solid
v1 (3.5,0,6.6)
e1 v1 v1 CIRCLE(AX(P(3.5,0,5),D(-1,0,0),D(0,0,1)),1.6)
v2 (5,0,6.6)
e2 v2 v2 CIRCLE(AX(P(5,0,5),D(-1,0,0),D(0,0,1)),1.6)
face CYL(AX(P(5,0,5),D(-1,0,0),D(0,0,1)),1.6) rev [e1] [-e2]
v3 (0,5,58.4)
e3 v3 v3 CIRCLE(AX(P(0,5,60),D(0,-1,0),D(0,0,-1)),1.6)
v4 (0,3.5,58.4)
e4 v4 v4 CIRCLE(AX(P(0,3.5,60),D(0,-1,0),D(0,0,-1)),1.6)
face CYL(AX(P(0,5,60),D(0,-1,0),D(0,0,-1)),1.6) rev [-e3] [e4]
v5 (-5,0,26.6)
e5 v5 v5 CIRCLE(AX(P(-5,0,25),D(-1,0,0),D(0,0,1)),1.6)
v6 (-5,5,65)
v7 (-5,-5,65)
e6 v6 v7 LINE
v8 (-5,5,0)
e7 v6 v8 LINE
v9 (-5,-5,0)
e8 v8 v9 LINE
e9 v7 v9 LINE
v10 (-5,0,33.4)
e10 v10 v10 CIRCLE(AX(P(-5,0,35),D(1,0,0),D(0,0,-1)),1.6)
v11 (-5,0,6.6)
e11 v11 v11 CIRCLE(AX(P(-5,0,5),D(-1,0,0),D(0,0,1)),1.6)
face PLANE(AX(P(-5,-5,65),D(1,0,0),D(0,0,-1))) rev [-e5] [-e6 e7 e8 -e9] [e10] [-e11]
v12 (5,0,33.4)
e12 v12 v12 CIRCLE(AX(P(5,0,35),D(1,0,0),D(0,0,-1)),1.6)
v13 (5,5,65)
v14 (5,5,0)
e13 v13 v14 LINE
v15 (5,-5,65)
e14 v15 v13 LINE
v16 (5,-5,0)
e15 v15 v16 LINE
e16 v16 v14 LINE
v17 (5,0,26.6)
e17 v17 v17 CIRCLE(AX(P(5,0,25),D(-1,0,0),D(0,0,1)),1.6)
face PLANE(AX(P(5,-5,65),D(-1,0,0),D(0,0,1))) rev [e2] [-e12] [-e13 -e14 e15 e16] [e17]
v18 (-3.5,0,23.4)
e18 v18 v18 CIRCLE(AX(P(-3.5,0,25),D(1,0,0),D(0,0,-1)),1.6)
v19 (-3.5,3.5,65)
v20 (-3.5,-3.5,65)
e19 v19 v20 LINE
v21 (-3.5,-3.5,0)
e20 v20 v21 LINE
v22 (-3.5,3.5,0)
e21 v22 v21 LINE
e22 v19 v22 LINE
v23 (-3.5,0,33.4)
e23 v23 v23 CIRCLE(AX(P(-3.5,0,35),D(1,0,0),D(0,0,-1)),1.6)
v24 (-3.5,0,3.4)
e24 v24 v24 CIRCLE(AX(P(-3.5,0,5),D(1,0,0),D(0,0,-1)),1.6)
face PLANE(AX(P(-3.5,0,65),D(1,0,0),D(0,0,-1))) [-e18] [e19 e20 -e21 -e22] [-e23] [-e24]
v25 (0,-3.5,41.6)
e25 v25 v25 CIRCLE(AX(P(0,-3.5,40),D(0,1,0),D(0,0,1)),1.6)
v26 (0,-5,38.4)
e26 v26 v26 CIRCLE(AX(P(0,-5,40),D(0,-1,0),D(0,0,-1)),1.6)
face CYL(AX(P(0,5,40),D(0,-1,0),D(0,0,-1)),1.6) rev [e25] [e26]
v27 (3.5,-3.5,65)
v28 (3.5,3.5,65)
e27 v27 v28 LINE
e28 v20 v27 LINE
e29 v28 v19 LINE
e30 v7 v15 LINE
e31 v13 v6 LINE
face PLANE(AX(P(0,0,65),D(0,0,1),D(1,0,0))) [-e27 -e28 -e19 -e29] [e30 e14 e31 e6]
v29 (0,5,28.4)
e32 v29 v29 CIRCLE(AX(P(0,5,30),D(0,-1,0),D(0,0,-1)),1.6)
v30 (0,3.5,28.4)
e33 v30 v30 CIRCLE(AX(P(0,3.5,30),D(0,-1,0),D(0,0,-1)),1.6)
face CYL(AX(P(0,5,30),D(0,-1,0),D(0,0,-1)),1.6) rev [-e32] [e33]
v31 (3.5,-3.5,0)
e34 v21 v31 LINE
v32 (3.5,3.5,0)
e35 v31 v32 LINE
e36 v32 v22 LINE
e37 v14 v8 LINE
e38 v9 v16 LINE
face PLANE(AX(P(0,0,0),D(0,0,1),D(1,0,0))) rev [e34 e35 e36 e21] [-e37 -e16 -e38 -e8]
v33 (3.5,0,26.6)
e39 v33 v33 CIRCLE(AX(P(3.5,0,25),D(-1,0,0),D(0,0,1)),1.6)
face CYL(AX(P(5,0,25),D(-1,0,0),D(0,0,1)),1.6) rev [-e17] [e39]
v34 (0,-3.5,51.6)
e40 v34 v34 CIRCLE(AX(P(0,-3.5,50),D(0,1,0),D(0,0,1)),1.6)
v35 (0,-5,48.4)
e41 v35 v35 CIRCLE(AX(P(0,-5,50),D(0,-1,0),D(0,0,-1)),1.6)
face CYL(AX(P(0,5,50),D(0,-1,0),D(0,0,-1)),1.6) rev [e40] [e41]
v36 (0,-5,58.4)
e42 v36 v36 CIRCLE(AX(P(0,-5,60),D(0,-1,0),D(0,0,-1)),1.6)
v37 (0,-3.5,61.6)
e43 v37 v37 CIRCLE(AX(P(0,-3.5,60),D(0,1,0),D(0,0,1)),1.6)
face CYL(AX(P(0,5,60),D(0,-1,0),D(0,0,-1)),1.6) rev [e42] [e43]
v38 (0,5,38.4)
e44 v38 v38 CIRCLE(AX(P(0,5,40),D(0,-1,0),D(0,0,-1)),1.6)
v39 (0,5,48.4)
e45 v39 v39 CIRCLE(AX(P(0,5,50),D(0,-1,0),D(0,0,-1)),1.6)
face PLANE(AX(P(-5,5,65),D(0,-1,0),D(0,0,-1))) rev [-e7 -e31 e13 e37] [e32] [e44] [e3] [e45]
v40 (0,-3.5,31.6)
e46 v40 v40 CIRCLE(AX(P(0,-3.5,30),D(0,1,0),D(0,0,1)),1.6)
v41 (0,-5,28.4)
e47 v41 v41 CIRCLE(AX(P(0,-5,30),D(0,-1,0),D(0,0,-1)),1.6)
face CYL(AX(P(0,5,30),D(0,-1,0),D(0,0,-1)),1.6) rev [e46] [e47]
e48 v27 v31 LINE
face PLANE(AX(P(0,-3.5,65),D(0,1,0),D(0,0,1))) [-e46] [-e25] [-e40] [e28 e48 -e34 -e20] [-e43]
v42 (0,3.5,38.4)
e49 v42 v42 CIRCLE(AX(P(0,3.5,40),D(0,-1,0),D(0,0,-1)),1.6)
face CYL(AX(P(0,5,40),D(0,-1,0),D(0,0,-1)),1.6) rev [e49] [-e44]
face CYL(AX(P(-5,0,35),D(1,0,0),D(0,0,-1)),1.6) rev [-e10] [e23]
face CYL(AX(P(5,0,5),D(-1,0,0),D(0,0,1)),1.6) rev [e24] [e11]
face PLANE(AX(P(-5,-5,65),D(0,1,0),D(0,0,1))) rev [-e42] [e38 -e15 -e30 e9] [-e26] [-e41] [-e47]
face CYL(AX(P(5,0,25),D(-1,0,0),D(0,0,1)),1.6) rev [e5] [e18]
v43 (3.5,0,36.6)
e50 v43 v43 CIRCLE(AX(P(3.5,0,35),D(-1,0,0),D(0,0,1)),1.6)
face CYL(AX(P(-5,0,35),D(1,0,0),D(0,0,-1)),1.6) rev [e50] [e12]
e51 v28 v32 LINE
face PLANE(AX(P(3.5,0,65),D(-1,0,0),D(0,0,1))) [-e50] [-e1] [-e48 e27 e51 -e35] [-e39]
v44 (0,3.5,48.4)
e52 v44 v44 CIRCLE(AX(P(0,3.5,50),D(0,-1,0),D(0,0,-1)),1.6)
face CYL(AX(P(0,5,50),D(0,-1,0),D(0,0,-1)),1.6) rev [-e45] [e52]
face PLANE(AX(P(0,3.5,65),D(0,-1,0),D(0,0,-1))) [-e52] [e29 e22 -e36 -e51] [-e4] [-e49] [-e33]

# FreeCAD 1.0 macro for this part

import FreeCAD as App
import Part
import Sketcher

V = App.Vector


def add_polygon(sketch, points):
    """Adds a closed chain of lines whose ends are joined by coincident constraints."""
    first, n = sketch.GeometryCount, len(points)
    for a, b in zip(points, points[1:] + points[:1]):
        sketch.addGeometry(Part.LineSegment(App.Vector(*a, 0), App.Vector(*b, 0)), False)
    for i in range(n):
        sketch.addConstraint(Sketcher.Constraint("Coincident", first + i, 2, first + (i + 1) % n, 1))

doc = App.newDocument("Part")
params = doc.addObject("Spreadsheet::Sheet", "Params")
for row, (alias, value) in enumerate([
    ("sketch1_width", "10 mm"),
    ("sketch1_width2", "7 mm"),
    ("pad1_length", "65 mm"),
    ("sketch2_diameter", "3.2 mm"),
    ("sketch3_diameter", "3.2 mm"),
    ("sketch4_diameter", "3.2 mm"),
], start=1):
    params.set(f"A{row}", alias)
    params.set(f"B{row}", "=" + value)
    params.setAlias(f"B{row}", alias)

body = doc.addObject("PartDesign::Body", "Body")

# Sketch on XY plane
sketch1 = body.newObject("Sketcher::SketchObject", "Sketch")
sketch1.AttachmentSupport = (doc.getObject("XY_Plane"), [""])
sketch1.MapMode = "FlatFace"
add_polygon(sketch1, [(-5, 5), (-5, -5), (5, -5), (5, 5)])  # lines 0-3
add_polygon(sketch1, [(4, -4), (-4, -4), (-4, 4), (4, 4)])  # lines 4-7
sketch1.addConstraint(Sketcher.Constraint("Vertical", 0))
sketch1.addConstraint(Sketcher.Constraint("Horizontal", 1))
sketch1.addConstraint(Sketcher.Constraint("Vertical", 2))
sketch1.addConstraint(Sketcher.Constraint("Horizontal", 3))
sketch1.addConstraint(Sketcher.Constraint("Horizontal", 4))
sketch1.addConstraint(Sketcher.Constraint("Vertical", 5))
sketch1.addConstraint(Sketcher.Constraint("Horizontal", 6))
sketch1.addConstraint(Sketcher.Constraint("Vertical", 7))
sketch1.addConstraint(Sketcher.Constraint("Symmetric", 0, 2, 2, 2, -1, 1))
sketch1.addConstraint(Sketcher.Constraint("Symmetric", 4, 2, 6, 2, -1, 1))
sketch1.addConstraint(Sketcher.Constraint("Equal", 3, 0))
sketch1.addConstraint(Sketcher.Constraint("Equal", 6, 5))
sketch1.addConstraint(Sketcher.Constraint("DistanceX", 1, 1, 1, 2, 10.0))
sketch1.addConstraint(Sketcher.Constraint("DistanceX", 4, 2, 4, 1, 7.0))
sketch1.setExpression("Constraints[20]", "Params.sketch1_width")
sketch1.setExpression("Constraints[21]", "Params.sketch1_width2")
pad1 = body.newObject("PartDesign::Pad", "Pad")
pad1.Profile = sketch1
pad1.setExpression("Length", "Params.pad1_length")

# Sketch on YZ plane
sketch2 = body.newObject("Sketcher::SketchObject", "Sketch001")
sketch2.AttachmentSupport = (doc.getObject("YZ_Plane"), [""])
sketch2.MapMode = "FlatFace"
sketch2.AttachmentOffset = App.Placement(V(0, 0, -5), App.Rotation())
sketch2.addGeometry(Part.Circle(V(0, 5, 0), V(0, 0, 1), 1.6), False)
sketch2.addGeometry(Part.Circle(V(0, 25, 0), V(0, 0, 1), 1.6), False)
sketch2.addConstraint(Sketcher.Constraint("Equal", 0, 1))
sketch2.addConstraint(Sketcher.Constraint("PointOnObject", 0, 3, -2))
sketch2.addConstraint(Sketcher.Constraint("PointOnObject", 1, 3, -2))
sketch2.addConstraint(Sketcher.Constraint("Diameter", 0, 3.2))
sketch2.addConstraint(Sketcher.Constraint("DistanceY", -1, 1, 0, 3, 5.0))
sketch2.addConstraint(Sketcher.Constraint("DistanceY", -1, 1, 1, 3, 25.0))
sketch2.setExpression("Constraints[3]", "Params.sketch2_diameter")
pocket1 = body.newObject("PartDesign::Pocket", "Pocket")
pocket1.Profile = sketch2
pocket1.Type = "ThroughAll"
pocket1.Reversed = True

# Sketch on XZ plane
sketch3 = body.newObject("Sketcher::SketchObject", "Sketch002")
sketch3.AttachmentSupport = (doc.getObject("XZ_Plane"), [""])
sketch3.MapMode = "FlatFace"
sketch3.AttachmentOffset = App.Placement(V(0, 0, 5), App.Rotation())
sketch3.addGeometry(Part.Circle(V(0, 30, 0), V(0, 0, 1), 1.6), False)
sketch3.addGeometry(Part.Circle(V(0, 40, 0), V(0, 0, 1), 1.6), False)
sketch3.addGeometry(Part.Circle(V(0, 50, 0), V(0, 0, 1), 1.6), False)
sketch3.addGeometry(Part.Circle(V(0, 60, 0), V(0, 0, 1), 1.6), False)
sketch3.addConstraint(Sketcher.Constraint("Equal", 0, 1))
sketch3.addConstraint(Sketcher.Constraint("Equal", 1, 2))
sketch3.addConstraint(Sketcher.Constraint("Equal", 2, 3))
sketch3.addConstraint(Sketcher.Constraint("PointOnObject", 0, 3, -2))
sketch3.addConstraint(Sketcher.Constraint("PointOnObject", 1, 3, -2))
sketch3.addConstraint(Sketcher.Constraint("PointOnObject", 2, 3, -2))
sketch3.addConstraint(Sketcher.Constraint("PointOnObject", 3, 3, -2))
sketch3.addConstraint(Sketcher.Constraint("Diameter", 0, 3.2))
sketch3.addConstraint(Sketcher.Constraint("DistanceY", -1, 1, 0, 3, 30.0))
sketch3.addConstraint(Sketcher.Constraint("DistanceY", -1, 1, 1, 3, 40.0))
sketch3.addConstraint(Sketcher.Constraint("DistanceY", -1, 1, 2, 3, 50.0))
sketch3.addConstraint(Sketcher.Constraint("DistanceY", -1, 1, 3, 3, 60.0))
sketch3.setExpression("Constraints[7]", "Params.sketch3_diameter")
pocket2 = body.newObject("PartDesign::Pocket", "Pocket001")
pocket2.Profile = sketch3
pocket2.Type = "ThroughAll"

# Sketch on YZ plane
sketch4 = body.newObject("Sketcher::SketchObject", "Sketch003")
sketch4.AttachmentSupport = (doc.getObject("YZ_Plane"), [""])
sketch4.MapMode = "FlatFace"
sketch4.AttachmentOffset = App.Placement(V(0, 0, 5), App.Rotation())
sketch4.addGeometry(Part.Circle(V(0, 35, 0), V(0, 0, 1), 1.6), False)
sketch4.addConstraint(Sketcher.Constraint("PointOnObject", 0, 3, -2))
sketch4.addConstraint(Sketcher.Constraint("Diameter", 0, 3.2))
sketch4.addConstraint(Sketcher.Constraint("DistanceY", -1, 1, 0, 3, 35.0))
sketch4.setExpression("Constraints[1]", "Params.sketch4_diameter")
pocket3 = body.newObject("PartDesign::Pocket", "Pocket002")
pocket3.Profile = sketch4
pocket3.Type = "ThroughAll"

doc.recompute()
